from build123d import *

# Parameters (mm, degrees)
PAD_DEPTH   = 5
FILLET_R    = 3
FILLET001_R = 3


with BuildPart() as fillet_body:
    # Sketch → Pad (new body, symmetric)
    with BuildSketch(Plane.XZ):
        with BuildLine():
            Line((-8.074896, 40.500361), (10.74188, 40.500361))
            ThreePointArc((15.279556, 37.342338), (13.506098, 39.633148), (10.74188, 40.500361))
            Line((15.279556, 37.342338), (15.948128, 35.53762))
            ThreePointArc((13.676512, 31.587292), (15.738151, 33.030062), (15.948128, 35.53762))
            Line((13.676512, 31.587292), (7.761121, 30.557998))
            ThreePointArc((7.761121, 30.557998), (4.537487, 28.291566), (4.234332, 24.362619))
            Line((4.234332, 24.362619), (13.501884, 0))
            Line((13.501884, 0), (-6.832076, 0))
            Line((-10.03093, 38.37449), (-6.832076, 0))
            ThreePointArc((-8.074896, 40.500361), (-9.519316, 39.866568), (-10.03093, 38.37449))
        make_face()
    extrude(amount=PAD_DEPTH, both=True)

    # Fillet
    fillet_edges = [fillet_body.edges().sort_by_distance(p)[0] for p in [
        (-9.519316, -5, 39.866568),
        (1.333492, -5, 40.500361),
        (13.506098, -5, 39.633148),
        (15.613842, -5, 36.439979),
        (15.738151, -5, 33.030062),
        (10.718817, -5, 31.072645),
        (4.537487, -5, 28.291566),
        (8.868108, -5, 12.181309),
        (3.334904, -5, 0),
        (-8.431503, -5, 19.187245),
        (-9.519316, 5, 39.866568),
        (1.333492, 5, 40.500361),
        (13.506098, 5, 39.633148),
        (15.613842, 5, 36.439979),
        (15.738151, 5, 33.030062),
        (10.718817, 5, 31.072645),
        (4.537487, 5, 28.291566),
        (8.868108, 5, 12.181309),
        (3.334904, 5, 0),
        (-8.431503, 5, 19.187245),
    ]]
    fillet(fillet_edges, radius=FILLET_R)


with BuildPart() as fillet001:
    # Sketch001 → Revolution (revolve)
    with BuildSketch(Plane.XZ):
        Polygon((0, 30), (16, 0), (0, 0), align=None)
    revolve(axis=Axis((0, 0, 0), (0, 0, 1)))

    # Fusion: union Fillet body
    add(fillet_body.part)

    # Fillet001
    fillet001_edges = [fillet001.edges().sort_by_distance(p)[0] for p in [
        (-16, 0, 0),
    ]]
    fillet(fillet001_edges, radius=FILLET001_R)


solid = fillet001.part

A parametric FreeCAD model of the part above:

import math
import FreeCAD as App
import Part
import Sketcher
from FreeCAD import Vector


def edges_at(feature, points):
    """Names of the edges that pass closest to the given points."""
    edges = feature.Shape.Edges
    near = lambda p: min(range(len(edges)), key=lambda i: edges[i].distToShape(Part.Vertex(*p))[0])
    return sorted({f"Edge{near(p) + 1}" for p in points})

doc = App.newDocument("Part")
body = doc.addObject("PartDesign::Body", "Body")

sketch1 = doc.addObject("Sketcher::SketchObject", "Sketch")
body.addObject(sketch1)
sketch1.AttachmentSupport = (doc.XZ_Plane, [""])
sketch1.MapMode = "FlatFace"
sketch1.addGeometry([
    Part.LineSegment(Vector(10.74188, 40.500361, 0), Vector(-8.074896, 40.500361, 0)),
    Part.ArcOfCircle(Part.Circle(Vector(-8.074897, 38.537544, 0), Vector(0, 0, 1), 1.962817), math.radians(89.999969), math.radians(184.765127)),
    Part.LineSegment(Vector(-10.03093, 38.37449, 0), Vector(-6.832076, 0, 0)),
    Part.LineSegment(Vector(-6.832076, 0, 0), Vector(13.501884, 0, 0)),
    Part.LineSegment(Vector(13.501884, 0, 0), Vector(4.234332, 24.362619, 0)),
    Part.ArcOfCircle(Part.Circle(Vector(8.55326, 26.005542, 0), Vector(0, 0, 1), 4.620859), math.radians(99.870785), math.radians(200.826853)),
    Part.LineSegment(Vector(7.761121, 30.557998, 0), Vector(13.676512, 31.587292, 0)),
    Part.ArcOfCircle(Part.Circle(Vector(13.168332, 34.507823, 0), Vector(0, 0, 1), 2.964414), math.radians(-80.129207), math.radians(20.327536)),
    Part.LineSegment(Vector(15.948128, 35.53762, 0), Vector(15.279556, 37.342338, 0)),
    Part.ArcOfCircle(Part.Circle(Vector(10.74188, 35.661318, 0), Vector(0, 0, 1), 4.839043), math.radians(20.327564), math.radians(89.999996)),
], False)
sketch1.addConstraint([
    Sketcher.Constraint("Tangent", 0, 2, 1, 1),
    Sketcher.Constraint("Tangent", 1, 2, 2, 1),
    Sketcher.Constraint("Coincident", 2, 2, 3, 1),
    Sketcher.Constraint("Coincident", 3, 2, 4, 1),
    Sketcher.Constraint("Tangent", 4, 2, 5, 2),
    Sketcher.Constraint("Tangent", 5, 1, 6, 1),
    Sketcher.Constraint("Tangent", 6, 2, 7, 1),
    Sketcher.Constraint("Tangent", 7, 2, 8, 1),
    Sketcher.Constraint("Tangent", 8, 2, 9, 1),
    Sketcher.Constraint("Tangent", 9, 2, 0, 1),
    Sketcher.Constraint("Horizontal", 0),
    Sketcher.Constraint("Horizontal", 3),
    Sketcher.Constraint("PointOnObject", 2, 2, -1),
    Sketcher.Constraint("Radius", 5, 4.620859),
    Sketcher.Constraint("Radius", 1, 1.962817),
    Sketcher.Constraint("Radius", 7, 2.964414),
    Sketcher.Constraint("Radius", 9, 4.839043),
    Sketcher.Constraint("DistanceY", 5, 3, 1, 3, 12.532001),
    Sketcher.Constraint("DistanceX", 4, 2, 7, 3, 8.934),
    Sketcher.Constraint("DistanceX", 3, 1, 3, 2, 20.33396),
    Sketcher.Constraint("DistanceY", 4, 2, 9, 3, 11.298699),
    Sketcher.Constraint("DistanceY", 7, 2, 9, 3, 0.123698),
    Sketcher.Constraint("DistanceX", 0, 2, 0, 1, 18.816776),
    Sketcher.Constraint("DistanceX", -1, 1, 5, 3, 8.55326),
    Sketcher.Constraint("DistanceX", -1, 1, 9, 3, 10.74188),
    Sketcher.Constraint("DistanceY", -1, 1, 9, 3, 35.661318),
])
pad1 = doc.addObject("PartDesign::Pad", "Pad")
body.addObject(pad1)
pad1.Profile = sketch1
pad1.Length = 10
pad1.Midplane = True
doc.recompute()

fillet = doc.addObject("PartDesign::Fillet", "Fillet")
body.addObject(fillet)
fillet.Base = (pad1, edges_at(pad1, [
    (-9.519, -5, 39.867),
    (1.333, -5, 40.5),
    (13.506, -5, 39.633),
    (15.614, -5, 36.44),
    (15.738, -5, 33.03),
    (10.719, -5, 31.073),
    (4.537, -5, 28.292),
    (8.868, -5, 12.181),
    (3.335, -5, 0),
    (-8.432, -5, 19.187),
    (-9.519, 5, 39.867),
    (1.333, 5, 40.5),
    (13.506, 5, 39.633),
    (15.614, 5, 36.44),
    (15.738, 5, 33.03),
    (10.719, 5, 31.073),
    (4.537, 5, 28.292),
    (8.868, 5, 12.181),
    (3.335, 5, 0),
    (-8.432, 5, 19.187),
]))
fillet.Radius = 3
body2 = doc.addObject("PartDesign::Body", "Body001")

sketch2 = doc.addObject("Sketcher::SketchObject", "Sketch001")
body2.addObject(sketch2)
sketch2.AttachmentSupport = (doc.getObject("XZ_Plane001"), [""])
sketch2.MapMode = "FlatFace"
sketch2.addGeometry([
    Part.LineSegment(Vector(16, 0, 0), Vector(0, 30, 0)),
    Part.LineSegment(Vector(0, 30, 0), Vector(0, 0, 0)),
    Part.LineSegment(Vector(0, 0, 0), Vector(16, 0, 0)),
], False)
sketch2.addConstraint([
    Sketcher.Constraint("Coincident", 0, 2, 1, 1),
    Sketcher.Constraint("Coincident", 1, 2, 2, 1),
    Sketcher.Constraint("Coincident", 2, 2, 0, 1),
    Sketcher.Constraint("Vertical", 1),
    Sketcher.Constraint("Horizontal", 2),
    Sketcher.Constraint("Coincident", 1, 2, -1, 1),
    Sketcher.Constraint("DistanceX", 2, 1, 2, 2, 16.0),
    Sketcher.Constraint("DistanceY", 1, 2, 1, 1, 30.0),
])
revolution = doc.addObject("PartDesign::Revolution", "Revolution")
body2.addObject(revolution)
revolution.Profile = sketch2
revolution.ReferenceAxis = (sketch2, ["V_Axis"])
revolution.Angle = 360
doc.recompute()

boolean = doc.addObject("PartDesign::Boolean", "Boolean")
body2.addObject(boolean)
boolean.Type = "Fuse"
boolean.addObjects([body])
doc.recompute()

fillet2 = doc.addObject("PartDesign::Fillet", "Fillet001")
body2.addObject(fillet2)
fillet2.Base = (boolean, edges_at(boolean, [(-16, 0, 0)]))
fillet2.Radius = 3

doc.recompute()
